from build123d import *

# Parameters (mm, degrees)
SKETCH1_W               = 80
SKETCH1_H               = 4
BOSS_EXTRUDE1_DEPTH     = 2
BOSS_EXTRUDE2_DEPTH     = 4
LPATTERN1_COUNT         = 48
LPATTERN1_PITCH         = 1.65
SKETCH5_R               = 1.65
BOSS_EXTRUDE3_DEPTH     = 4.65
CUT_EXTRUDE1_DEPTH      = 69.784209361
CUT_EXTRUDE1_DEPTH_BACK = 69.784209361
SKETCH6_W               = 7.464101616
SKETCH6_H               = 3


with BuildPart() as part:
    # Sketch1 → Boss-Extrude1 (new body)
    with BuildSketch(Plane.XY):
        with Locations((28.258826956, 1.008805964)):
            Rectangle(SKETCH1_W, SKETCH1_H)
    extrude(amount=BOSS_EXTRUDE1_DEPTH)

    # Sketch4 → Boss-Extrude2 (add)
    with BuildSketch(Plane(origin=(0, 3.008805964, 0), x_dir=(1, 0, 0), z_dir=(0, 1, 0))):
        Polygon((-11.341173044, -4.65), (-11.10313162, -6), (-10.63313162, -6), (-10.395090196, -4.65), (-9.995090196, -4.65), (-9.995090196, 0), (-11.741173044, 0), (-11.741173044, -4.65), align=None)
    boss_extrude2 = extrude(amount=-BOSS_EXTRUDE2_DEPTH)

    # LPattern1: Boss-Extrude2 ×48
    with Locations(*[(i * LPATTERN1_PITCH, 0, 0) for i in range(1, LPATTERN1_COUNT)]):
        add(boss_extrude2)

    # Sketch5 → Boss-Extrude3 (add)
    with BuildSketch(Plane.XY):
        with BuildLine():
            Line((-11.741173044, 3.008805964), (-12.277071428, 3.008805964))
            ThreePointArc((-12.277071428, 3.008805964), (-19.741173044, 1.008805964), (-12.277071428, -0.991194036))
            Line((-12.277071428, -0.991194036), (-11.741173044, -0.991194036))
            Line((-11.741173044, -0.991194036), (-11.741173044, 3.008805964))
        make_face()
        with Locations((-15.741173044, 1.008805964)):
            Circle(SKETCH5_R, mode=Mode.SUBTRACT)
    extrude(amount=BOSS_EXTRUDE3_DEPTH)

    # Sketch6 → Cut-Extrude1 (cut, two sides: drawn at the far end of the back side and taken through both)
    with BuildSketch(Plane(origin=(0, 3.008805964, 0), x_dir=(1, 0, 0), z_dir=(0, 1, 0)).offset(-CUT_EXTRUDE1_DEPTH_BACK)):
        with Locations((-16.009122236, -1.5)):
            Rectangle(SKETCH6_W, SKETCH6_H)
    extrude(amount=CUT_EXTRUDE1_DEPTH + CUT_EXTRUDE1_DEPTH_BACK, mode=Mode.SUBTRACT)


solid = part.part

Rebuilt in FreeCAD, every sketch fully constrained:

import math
import FreeCAD as App
import Part
import Sketcher

V = App.Vector
Q = App.Units.Quantity

doc = App.newDocument("Part")
body = doc.addObject("PartDesign::Body", "Body")

# Sketch on XY plane
sketch1 = doc.addObject("Sketcher::SketchObject", "Sketch")
body.addObject(sketch1)
sketch1.AttachmentSupport = (doc.XY_Plane, [""])
sketch1.MapMode = "FlatFace"
sketch1.addGeometry([
    Part.LineSegment(V(-11.741173, 3.008806, 0), V(-11.741173, -0.991194, 0)),
    Part.LineSegment(V(-11.741173, -0.991194, 0), V(68.258827, -0.991194, 0)),
    Part.LineSegment(V(68.258827, -0.991194, 0), V(68.258827, 3.008806, 0)),
    Part.LineSegment(V(68.258827, 3.008806, 0), V(-11.741173, 3.008806, 0)),
], False)
sketch1.addConstraint([
    Sketcher.Constraint("Coincident", 0, 2, 1, 1),
    Sketcher.Constraint("Coincident", 1, 2, 2, 1),
    Sketcher.Constraint("Coincident", 2, 2, 3, 1),
    Sketcher.Constraint("Coincident", 3, 2, 0, 1),
    Sketcher.Constraint("Vertical", 0),
    Sketcher.Constraint("Horizontal", 1),
    Sketcher.Constraint("Vertical", 2),
    Sketcher.Constraint("Horizontal", 3),
    Sketcher.Constraint("DistanceX", 1, 1, 1, 2, 80.0),
    Sketcher.Constraint("DistanceY", 0, 2, 0, 1, 4.0),
    Sketcher.Constraint("DistanceX", 0, 2, -1, 1, 11.741173),
    Sketcher.Constraint("DistanceY", 0, 2, -1, 1, 0.991194),
])
pad1 = doc.addObject("PartDesign::Pad", "Pad")
body.addObject(pad1)
pad1.Profile = sketch1
pad1.Length = 2

# Sketch on XZ plane
sketch2 = doc.addObject("Sketcher::SketchObject", "Sketch001")
body.addObject(sketch2)
sketch2.AttachmentSupport = (doc.XZ_Plane, [""])
sketch2.MapMode = "FlatFace"
sketch2.AttachmentOffset = App.Placement(V(0, 0, -3.008806), App.Rotation())
sketch2.addGeometry([
    Part.LineSegment(V(-11.341173, 4.65, 0), V(-11.103132, 6, 0)),  # 0
    Part.LineSegment(V(-11.103132, 6, 0), V(-10.633132, 6, 0)),  # 1
    Part.LineSegment(V(-10.633132, 6, 0), V(-10.39509, 4.65, 0)),  # 2
    Part.LineSegment(V(-10.39509, 4.65, 0), V(-9.99509, 4.65, 0)),  # 3
    Part.LineSegment(V(-9.99509, 4.65, 0), V(-9.99509, 0, 0)),  # 4
    Part.LineSegment(V(-9.99509, 0, 0), V(-11.741173, 0, 0)),  # 5
    Part.LineSegment(V(-11.741173, 0, 0), V(-11.741173, 4.65, 0)),  # 6
    Part.LineSegment(V(-11.741173, 4.65, 0), V(-11.341173, 4.65, 0)),  # 7
], False)
sketch2.addConstraint([
    Sketcher.Constraint("Coincident", 0, 2, 1, 1),
    Sketcher.Constraint("Coincident", 1, 2, 2, 1),
    Sketcher.Constraint("Coincident", 2, 2, 3, 1),
    Sketcher.Constraint("Coincident", 3, 2, 4, 1),
    Sketcher.Constraint("Coincident", 4, 2, 5, 1),
    Sketcher.Constraint("Coincident", 5, 2, 6, 1),
    Sketcher.Constraint("Coincident", 6, 2, 7, 1),
    Sketcher.Constraint("Coincident", 7, 2, 0, 1),
    Sketcher.Constraint("Horizontal", 1),
    Sketcher.Constraint("Horizontal", 3),
    Sketcher.Constraint("Vertical", 4),
    Sketcher.Constraint("Horizontal", 5),
    Sketcher.Constraint("Vertical", 6),
    Sketcher.Constraint("Horizontal", 7),
    Sketcher.Constraint("PointOnObject", 4, 2, -1),
    Sketcher.Constraint("Horizontal", 3, 2, 6, 2),
    Sketcher.Constraint("Equal", 3, 7),
    Sketcher.Constraint("Equal", 0, 2),
    Sketcher.Constraint("Angle", 0, Q("80 deg")),
    Sketcher.Constraint("DistanceX", 3, 1, 3, 2, 0.4),
    Sketcher.Constraint("DistanceY", -1, 1, 0, 2, 6.0),
    Sketcher.Constraint("DistanceX", 1, 1, 1, 2, 0.47),
    Sketcher.Constraint("DistanceY", 4, 2, 4, 1, 4.65),
    Sketcher.Constraint("DistanceX", 0, 2, -1, 1, 11.103132),
])
pad2 = doc.addObject("PartDesign::Pad", "Pad001")
body.addObject(pad2)
pad2.Profile = sketch2
pad2.Length = 4
doc.recompute()

linearpattern = doc.addObject("PartDesign::LinearPattern", "LinearPattern")
body.addObject(linearpattern)
linearpattern.Originals = [pad2]
linearpattern.Direction = (doc.X_Axis, [""])
linearpattern.Mode = "offset"
linearpattern.Offset = 1.65
linearpattern.Occurrences = 48
body.Tip = linearpattern

# Sketch on XY plane
sketch3 = doc.addObject("Sketcher::SketchObject", "Sketch002")
body.addObject(sketch3)
sketch3.AttachmentSupport = (doc.XY_Plane, [""])
sketch3.MapMode = "FlatFace"
sketch3.addGeometry([
    Part.LineSegment(V(-11.741173, 3.008806, 0), V(-12.277071, 3.008806, 0)),  # 0
    Part.ArcOfCircle(Part.Circle(V(-15.741173, 1.008806, 0), V(0, 0, 1), 4), math.radians(30), math.radians(330)),  # 1
    Part.LineSegment(V(-12.277071, -0.991194, 0), V(-11.741173, -0.991194, 0)),  # 2
    Part.LineSegment(V(-11.741173, -0.991194, 0), V(-11.741173, 3.008806, 0)),  # 3
    Part.Circle(V(-15.741173, 1.008806, 0), V(0, 0, 1), 1.65),  # 4
], False)
sketch3.addConstraint([
    Sketcher.Constraint("Coincident", 0, 2, 1, 1),
    Sketcher.Constraint("Coincident", 1, 2, 2, 1),
    Sketcher.Constraint("Coincident", 2, 2, 3, 1),
    Sketcher.Constraint("Coincident", 3, 2, 0, 1),
    Sketcher.Constraint("Horizontal", 0),
    Sketcher.Constraint("Horizontal", 2),
    Sketcher.Constraint("Vertical", 3),
    Sketcher.Constraint("Coincident", 4, 3, 1, 3),
    Sketcher.Constraint("Vertical", 0, 2, 1, 2),
    Sketcher.Constraint("Radius", 1, 4.0),
    Sketcher.Constraint("Diameter", 4, 3.3),
    Sketcher.Constraint("DistanceY", 3, 1, 3, 2, 4.0),
    Sketcher.Constraint("DistanceX", 1, 3, 2, 2, 4.0),
    Sketcher.Constraint("DistanceX", 0, 2, -1, 1, 12.277071),
    Sketcher.Constraint("DistanceY", -1, 1, 1, 3, 1.008806),
])
pad3 = doc.addObject("PartDesign::Pad", "Pad002")
body.addObject(pad3)
pad3.Profile = sketch3
pad3.Length = 4.65

# Sketch on XZ plane
sketch4 = doc.addObject("Sketcher::SketchObject", "Sketch003")
body.addObject(sketch4)
sketch4.AttachmentSupport = (doc.XZ_Plane, [""])
sketch4.MapMode = "FlatFace"
sketch4.AttachmentOffset = App.Placement(V(0, 0, -3.008806), App.Rotation())
sketch4.addGeometry([
    Part.LineSegment(V(-19.741173, 0, 0), V(-19.741173, 3, 0)),
    Part.LineSegment(V(-19.741173, 3, 0), V(-12.277071, 3, 0)),
    Part.LineSegment(V(-12.277071, 3, 0), V(-12.277071, 0, 0)),
    Part.LineSegment(V(-12.277071, 0, 0), V(-19.741173, 0, 0)),
], False)
sketch4.addConstraint([
    Sketcher.Constraint("Coincident", 0, 2, 1, 1),
    Sketcher.Constraint("Coincident", 1, 2, 2, 1),
    Sketcher.Constraint("Coincident", 2, 2, 3, 1),
    Sketcher.Constraint("Coincident", 3, 2, 0, 1),
    Sketcher.Constraint("Vertical", 0),
    Sketcher.Constraint("Horizontal", 1),
    Sketcher.Constraint("Vertical", 2),
    Sketcher.Constraint("Horizontal", 3),
    Sketcher.Constraint("PointOnObject", 2, 2, -1),
    Sketcher.Constraint("DistanceY", 0, 1, 0, 2, 3.0),
    Sketcher.Constraint("DistanceX", 1, 1, 1, 2, 7.464102),
    Sketcher.Constraint("DistanceX", 1, 2, -1, 1, 12.277071),
])
pocket1 = doc.addObject("PartDesign::Pocket", "Pocket")
body.addObject(pocket1)
pocket1.Profile = sketch4
pocket1.Type = "ThroughAll"
pocket1.Midplane = True

doc.recompute()
